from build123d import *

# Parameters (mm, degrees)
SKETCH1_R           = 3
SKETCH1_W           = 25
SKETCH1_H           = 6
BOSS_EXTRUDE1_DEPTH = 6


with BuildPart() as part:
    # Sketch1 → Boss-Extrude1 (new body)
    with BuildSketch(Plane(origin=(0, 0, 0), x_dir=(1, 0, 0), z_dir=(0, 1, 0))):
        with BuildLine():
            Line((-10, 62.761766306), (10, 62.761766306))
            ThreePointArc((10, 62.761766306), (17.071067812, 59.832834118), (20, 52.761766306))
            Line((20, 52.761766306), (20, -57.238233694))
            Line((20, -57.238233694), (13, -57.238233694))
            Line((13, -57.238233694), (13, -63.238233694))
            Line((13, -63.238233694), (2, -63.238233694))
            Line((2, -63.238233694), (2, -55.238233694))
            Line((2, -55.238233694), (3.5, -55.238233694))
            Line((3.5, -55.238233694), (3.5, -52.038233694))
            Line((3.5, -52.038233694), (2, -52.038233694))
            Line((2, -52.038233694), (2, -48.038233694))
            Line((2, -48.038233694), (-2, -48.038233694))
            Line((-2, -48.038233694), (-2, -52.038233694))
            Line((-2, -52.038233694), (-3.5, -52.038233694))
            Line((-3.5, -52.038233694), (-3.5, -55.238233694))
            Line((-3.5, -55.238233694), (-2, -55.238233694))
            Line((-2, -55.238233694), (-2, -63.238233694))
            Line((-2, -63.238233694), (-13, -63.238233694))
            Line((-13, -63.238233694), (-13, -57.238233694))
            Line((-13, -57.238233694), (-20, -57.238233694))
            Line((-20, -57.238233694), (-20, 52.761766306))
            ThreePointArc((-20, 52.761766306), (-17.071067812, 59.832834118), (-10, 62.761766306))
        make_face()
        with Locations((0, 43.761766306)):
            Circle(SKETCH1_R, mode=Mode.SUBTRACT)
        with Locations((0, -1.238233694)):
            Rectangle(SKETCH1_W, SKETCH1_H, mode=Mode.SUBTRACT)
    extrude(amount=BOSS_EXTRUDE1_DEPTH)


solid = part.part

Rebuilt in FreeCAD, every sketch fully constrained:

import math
import FreeCAD as App
import Part
import Sketcher

V = App.Vector
Q = App.Units.Quantity


def add_polygon(sketch, points):
    """Adds a closed chain of lines whose ends are joined by coincident constraints."""
    first, n = sketch.GeometryCount, len(points)
    for a, b in zip(points, points[1:] + points[:1]):
        sketch.addGeometry(Part.LineSegment(App.Vector(*a, 0), App.Vector(*b, 0)), False)
    for i in range(n):
        sketch.addConstraint(Sketcher.Constraint("Coincident", first + i, 2, first + (i + 1) % n, 1))

doc = App.newDocument("Part")
body = doc.addObject("PartDesign::Body", "Body")

# Sketch on XZ plane
sketch1 = body.newObject("Sketcher::SketchObject", "Sketch")
sketch1.AttachmentSupport = (doc.getObject("XZ_Plane"), [""])
sketch1.MapMode = "FlatFace"
sketch1.addGeometry(Part.LineSegment(V(10, -62.8, 0), V(-10, -62.8, 0)), False)  # 0
sketch1.addGeometry(Part.ArcOfCircle(Part.Circle(V(-10, -52.8, 0), V(0, 0, 1), 10), math.radians(180), math.radians(270)), False)  # 1
sketch1.addGeometry(Part.LineSegment(V(-20, -52.8, 0), V(-20, 57.2, 0)), False)  # 2
sketch1.addGeometry(Part.LineSegment(V(-20, 57.2, 0), V(-13, 57.2, 0)), False)  # 3
sketch1.addGeometry(Part.LineSegment(V(-13, 57.2, 0), V(-13, 63.2, 0)), False)  # 4
sketch1.addGeometry(Part.LineSegment(V(-13, 63.2, 0), V(-2, 63.2, 0)), False)  # 5
sketch1.addGeometry(Part.LineSegment(V(-2, 63.2, 0), V(-2, 55.2, 0)), False)  # 6
sketch1.addGeometry(Part.LineSegment(V(-2, 55.2, 0), V(-3.5, 55.2, 0)), False)  # 7
sketch1.addGeometry(Part.LineSegment(V(-3.5, 55.2, 0), V(-3.5, 52, 0)), False)  # 8
sketch1.addGeometry(Part.LineSegment(V(-3.5, 52, 0), V(-2, 52, 0)), False)  # 9
sketch1.addGeometry(Part.LineSegment(V(-2, 52, 0), V(-2, 48, 0)), False)  # 10
sketch1.addGeometry(Part.LineSegment(V(-2, 48, 0), V(2, 48, 0)), False)  # 11
sketch1.addGeometry(Part.LineSegment(V(2, 48, 0), V(2, 52, 0)), False)  # 12
sketch1.addGeometry(Part.LineSegment(V(2, 52, 0), V(3.5, 52, 0)), False)  # 13
sketch1.addGeometry(Part.LineSegment(V(3.5, 52, 0), V(3.5, 55.2, 0)), False)  # 14
sketch1.addGeometry(Part.LineSegment(V(3.5, 55.2, 0), V(2, 55.2, 0)), False)  # 15
sketch1.addGeometry(Part.LineSegment(V(2, 55.2, 0), V(2, 63.2, 0)), False)  # 16
sketch1.addGeometry(Part.LineSegment(V(2, 63.2, 0), V(13, 63.2, 0)), False)  # 17
sketch1.addGeometry(Part.LineSegment(V(13, 63.2, 0), V(13, 57.2, 0)), False)  # 18
sketch1.addGeometry(Part.LineSegment(V(13, 57.2, 0), V(20, 57.2, 0)), False)  # 19
sketch1.addGeometry(Part.LineSegment(V(20, 57.2, 0), V(20, -52.8, 0)), False)  # 20
sketch1.addGeometry(Part.ArcOfCircle(Part.Circle(V(10, -52.8, 0), V(0, 0, 1), 10), math.radians(-90), math.radians(0)), False)  # 21
add_polygon(sketch1, [(-12.5, 4.2), (-12.5, -1.8), (12.5, -1.8), (12.5, 4.2)])  # lines 22-25
sketch1.addGeometry(Part.Circle(V(0, -43.8, 0), V(0, 0, 1), 3), False)  # 26
sketch1.addConstraint([
    Sketcher.Constraint("Tangent", 0, 2, 1, 2),
    Sketcher.Constraint("Tangent", 1, 1, 2, 1),
    Sketcher.Constraint("Coincident", 2, 2, 3, 1),
    Sketcher.Constraint("Coincident", 3, 2, 4, 1),
    Sketcher.Constraint("Coincident", 4, 2, 5, 1),
    Sketcher.Constraint("Coincident", 5, 2, 6, 1),
    Sketcher.Constraint("Coincident", 6, 2, 7, 1),
    Sketcher.Constraint("Coincident", 7, 2, 8, 1),
    Sketcher.Constraint("Coincident", 8, 2, 9, 1),
    Sketcher.Constraint("Coincident", 9, 2, 10, 1),
    Sketcher.Constraint("Coincident", 10, 2, 11, 1),
    Sketcher.Constraint("Coincident", 11, 2, 12, 1),
    Sketcher.Constraint("Coincident", 12, 2, 13, 1),
    Sketcher.Constraint("Coincident", 13, 2, 14, 1),
    Sketcher.Constraint("Coincident", 14, 2, 15, 1),
    Sketcher.Constraint("Coincident", 15, 2, 16, 1),
    Sketcher.Constraint("Coincident", 16, 2, 17, 1),
    Sketcher.Constraint("Coincident", 17, 2, 18, 1),
    Sketcher.Constraint("Coincident", 18, 2, 19, 1),
    Sketcher.Constraint("Coincident", 19, 2, 20, 1),
    Sketcher.Constraint("Tangent", 20, 2, 21, 2),
    Sketcher.Constraint("Tangent", 21, 1, 0, 1),
    Sketcher.Constraint("Horizontal", 0),
    Sketcher.Constraint("Vertical", 2),
    Sketcher.Constraint("Horizontal", 3),
    Sketcher.Constraint("Vertical", 4),
    Sketcher.Constraint("Horizontal", 5),
    Sketcher.Constraint("Vertical", 6),
    Sketcher.Constraint("Horizontal", 7),
    Sketcher.Constraint("Vertical", 8),
    Sketcher.Constraint("Horizontal", 9),
    Sketcher.Constraint("Vertical", 10),
    Sketcher.Constraint("Horizontal", 11),
    Sketcher.Constraint("Vertical", 12),
    Sketcher.Constraint("Horizontal", 13),
    Sketcher.Constraint("Vertical", 14),
    Sketcher.Constraint("Horizontal", 15),
    Sketcher.Constraint("Vertical", 16),
    Sketcher.Constraint("Horizontal", 17),
    Sketcher.Constraint("Vertical", 18),
    Sketcher.Constraint("Horizontal", 19),
    Sketcher.Constraint("Vertical", 20),
    Sketcher.Constraint("Vertical", 22),
    Sketcher.Constraint("Horizontal", 23),
    Sketcher.Constraint("Vertical", 24),
    Sketcher.Constraint("Horizontal", 25),
    Sketcher.Constraint("Equal", 1, 21),
    Sketcher.Constraint("Symmetric", 9, 2, 12, 2, -2),
    Sketcher.Constraint("Symmetric", 7, 2, 14, 2, -2),
    Sketcher.Constraint("Symmetric", 5, 2, 16, 2, -2),
    Sketcher.Constraint("Symmetric", 3, 2, 18, 2, -2),
    Sketcher.Constraint("PointOnObject", 26, 3, -2),
    Sketcher.Constraint("Vertical", 6, 2, 9, 2),
    Sketcher.Constraint("Equal", 3, 19),
    Sketcher.Constraint("Equal", 11, 10),
    Sketcher.Constraint("Equal", 18, 22),
    Sketcher.Constraint("Diameter", 26, Q("6 mm")),
    Sketcher.Constraint("Radius", 1, Q("10 mm")),
    Sketcher.Constraint("DistanceX", 0, 2, 0, 1, Q("20 mm")),
    Sketcher.Constraint("DistanceX", 3, 1, 3, 2, Q("7 mm")),
    Sketcher.Constraint("DistanceX", 5, 1, 5, 2, Q("11 mm")),
    Sketcher.Constraint("DistanceX", 23, 1, 23, 2, Q("25 mm")),
    Sketcher.Constraint("DistanceY", 2, 1, 2, 2, Q("110 mm")),
    Sketcher.Constraint("DistanceY", 4, 1, 4, 2, Q("6 mm")),
    Sketcher.Constraint("DistanceY", 6, 2, 6, 1, Q("8 mm")),
    Sketcher.Constraint("DistanceX", 7, 2, 7, 1, Q("1.5 mm")),
    Sketcher.Constraint("DistanceY", 8, 2, 8, 1, Q("3.2 mm")),
    Sketcher.Constraint("DistanceY", 1, 3, 26, 3, Q("9 mm")),
    Sketcher.Constraint("DistanceY", 26, 3, 22, 2, Q("42 mm")),
    Sketcher.Constraint("DistanceX", 13, 2, 24, 2, Q("9 mm")),
    Sketcher.Constraint("DistanceY", 1, 3, -1, 1, Q("52.761766 mm")),
])
pad1 = body.newObject("PartDesign::Pad", "Pad")
pad1.Profile = sketch1
pad1.Length = 6
pad1.Reversed = True

doc.recompute()
